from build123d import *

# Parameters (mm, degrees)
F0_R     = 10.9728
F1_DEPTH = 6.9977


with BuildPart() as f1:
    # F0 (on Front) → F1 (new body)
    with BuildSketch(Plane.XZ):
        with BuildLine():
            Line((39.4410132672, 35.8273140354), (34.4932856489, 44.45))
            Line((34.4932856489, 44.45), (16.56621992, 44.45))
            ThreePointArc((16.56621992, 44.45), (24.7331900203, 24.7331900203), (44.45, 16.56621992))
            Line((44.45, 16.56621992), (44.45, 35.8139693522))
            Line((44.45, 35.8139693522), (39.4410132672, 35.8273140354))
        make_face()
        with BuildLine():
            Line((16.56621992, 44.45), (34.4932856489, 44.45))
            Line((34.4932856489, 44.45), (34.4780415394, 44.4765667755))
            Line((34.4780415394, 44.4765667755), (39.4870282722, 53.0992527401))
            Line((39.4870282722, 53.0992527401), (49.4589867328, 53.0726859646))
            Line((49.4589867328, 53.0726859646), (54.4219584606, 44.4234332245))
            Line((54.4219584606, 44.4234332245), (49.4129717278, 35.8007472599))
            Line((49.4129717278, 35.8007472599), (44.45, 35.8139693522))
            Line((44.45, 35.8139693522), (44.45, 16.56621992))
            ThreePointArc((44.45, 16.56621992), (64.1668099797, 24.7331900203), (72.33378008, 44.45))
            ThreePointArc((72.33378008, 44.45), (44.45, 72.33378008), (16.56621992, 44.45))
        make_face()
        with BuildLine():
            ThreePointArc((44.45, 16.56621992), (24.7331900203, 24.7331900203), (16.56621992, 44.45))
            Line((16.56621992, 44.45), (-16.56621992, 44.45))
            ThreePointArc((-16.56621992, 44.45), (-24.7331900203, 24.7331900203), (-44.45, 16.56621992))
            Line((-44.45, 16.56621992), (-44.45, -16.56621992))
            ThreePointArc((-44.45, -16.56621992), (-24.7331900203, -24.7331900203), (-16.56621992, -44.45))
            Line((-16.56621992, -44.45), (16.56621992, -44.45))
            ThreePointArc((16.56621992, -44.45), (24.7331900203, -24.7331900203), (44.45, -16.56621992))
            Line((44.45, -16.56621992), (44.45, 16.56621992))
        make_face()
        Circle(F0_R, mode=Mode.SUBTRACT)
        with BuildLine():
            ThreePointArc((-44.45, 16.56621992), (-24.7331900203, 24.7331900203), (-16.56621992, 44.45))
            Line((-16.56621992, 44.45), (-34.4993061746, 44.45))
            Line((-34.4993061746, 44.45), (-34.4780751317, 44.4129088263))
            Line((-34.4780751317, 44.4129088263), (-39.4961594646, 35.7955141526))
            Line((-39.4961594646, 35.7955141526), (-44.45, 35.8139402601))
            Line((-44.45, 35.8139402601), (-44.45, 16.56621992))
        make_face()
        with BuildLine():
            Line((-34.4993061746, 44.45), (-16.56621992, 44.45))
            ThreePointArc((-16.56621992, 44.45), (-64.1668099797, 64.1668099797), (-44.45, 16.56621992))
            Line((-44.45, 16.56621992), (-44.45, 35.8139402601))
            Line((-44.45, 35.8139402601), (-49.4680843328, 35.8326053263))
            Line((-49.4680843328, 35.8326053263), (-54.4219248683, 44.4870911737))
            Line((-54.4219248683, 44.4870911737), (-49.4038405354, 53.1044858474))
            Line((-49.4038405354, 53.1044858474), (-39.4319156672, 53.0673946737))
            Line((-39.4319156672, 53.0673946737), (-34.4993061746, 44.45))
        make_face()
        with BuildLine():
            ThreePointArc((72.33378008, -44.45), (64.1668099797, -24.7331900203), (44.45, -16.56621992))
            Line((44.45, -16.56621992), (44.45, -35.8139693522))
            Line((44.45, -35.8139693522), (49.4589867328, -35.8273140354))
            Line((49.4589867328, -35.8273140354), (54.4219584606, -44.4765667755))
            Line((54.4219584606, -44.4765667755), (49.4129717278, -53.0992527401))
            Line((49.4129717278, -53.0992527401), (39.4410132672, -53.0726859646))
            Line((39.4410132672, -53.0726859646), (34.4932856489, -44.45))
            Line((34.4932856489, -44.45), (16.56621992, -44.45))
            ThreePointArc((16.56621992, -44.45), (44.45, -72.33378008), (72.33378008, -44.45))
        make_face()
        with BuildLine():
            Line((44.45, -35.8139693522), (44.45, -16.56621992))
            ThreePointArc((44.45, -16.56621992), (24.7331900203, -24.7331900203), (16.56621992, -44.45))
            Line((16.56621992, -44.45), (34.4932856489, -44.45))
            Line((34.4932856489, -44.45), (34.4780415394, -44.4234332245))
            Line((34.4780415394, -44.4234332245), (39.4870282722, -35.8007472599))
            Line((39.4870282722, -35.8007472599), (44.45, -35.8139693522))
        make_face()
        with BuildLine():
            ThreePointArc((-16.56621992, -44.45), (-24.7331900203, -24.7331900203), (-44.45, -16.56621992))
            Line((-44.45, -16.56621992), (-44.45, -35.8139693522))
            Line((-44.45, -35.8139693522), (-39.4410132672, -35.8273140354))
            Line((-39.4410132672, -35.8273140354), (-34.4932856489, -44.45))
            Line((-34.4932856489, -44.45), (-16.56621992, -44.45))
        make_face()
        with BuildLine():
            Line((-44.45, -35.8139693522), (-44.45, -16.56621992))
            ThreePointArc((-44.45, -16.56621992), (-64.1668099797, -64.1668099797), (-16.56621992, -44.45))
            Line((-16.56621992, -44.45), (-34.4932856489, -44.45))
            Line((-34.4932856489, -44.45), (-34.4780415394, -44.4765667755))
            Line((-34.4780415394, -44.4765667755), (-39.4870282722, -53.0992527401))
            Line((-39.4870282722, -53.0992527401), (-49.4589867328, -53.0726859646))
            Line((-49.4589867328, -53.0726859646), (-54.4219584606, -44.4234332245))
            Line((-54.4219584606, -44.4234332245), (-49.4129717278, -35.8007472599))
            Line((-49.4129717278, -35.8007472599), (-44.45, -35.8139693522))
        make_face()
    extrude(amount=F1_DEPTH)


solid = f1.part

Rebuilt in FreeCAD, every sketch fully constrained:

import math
import FreeCAD as App
import Part
import Sketcher

V = App.Vector
Q = App.Units.Quantity


def add_polygon(sketch, points):
    """Adds a closed chain of lines whose ends are joined by coincident constraints."""
    first, n = sketch.GeometryCount, len(points)
    for a, b in zip(points, points[1:] + points[:1]):
        sketch.addGeometry(Part.LineSegment(App.Vector(*a, 0), App.Vector(*b, 0)), False)
    for i in range(n):
        sketch.addConstraint(Sketcher.Constraint("Coincident", first + i, 2, first + (i + 1) % n, 1))

doc = App.newDocument("Part")
body = doc.addObject("PartDesign::Body", "Body")

# Sketch on XZ plane
sketch1 = body.newObject("Sketcher::SketchObject", "Sketch")
sketch1.AttachmentSupport = (doc.getObject("XZ_Plane"), [""])
sketch1.MapMode = "FlatFace"
sketch1.addGeometry(Part.ArcOfCircle(Part.Circle(V(44.45, 44.45, 0), V(0, 0, 1), 27.884), math.radians(-90), math.radians(0)), False)  # 0
sketch1.addGeometry(Part.ArcOfCircle(Part.Circle(V(44.45, 44.45, 0), V(0, 0, 1), 27.884), math.radians(0), math.radians(180)), False)  # 1
sketch1.addGeometry(Part.LineSegment(V(16.566, 44.45, 0), V(-16.566, 44.45, 0)), False)  # 2
sketch1.addGeometry(Part.ArcOfCircle(Part.Circle(V(-44.45, 44.45, 0), V(0, 0, 1), 27.884), math.radians(0), math.radians(270)), False)  # 3
sketch1.addGeometry(Part.LineSegment(V(-44.45, 16.566, 0), V(-44.45, -16.566, 0)), False)  # 4
sketch1.addGeometry(Part.ArcOfCircle(Part.Circle(V(-44.45, -44.45, 0), V(0, 0, 1), 27.884), math.radians(90), math.radians(360)), False)  # 5
sketch1.addGeometry(Part.LineSegment(V(-16.566, -44.45, 0), V(16.566, -44.45, 0)), False)  # 6
sketch1.addGeometry(Part.ArcOfCircle(Part.Circle(V(44.45, -44.45, 0), V(0, 0, 1), 27.884), math.radians(180), math.radians(360)), False)  # 7
sketch1.addGeometry(Part.ArcOfCircle(Part.Circle(V(44.45, -44.45, 0), V(0, 0, 1), 27.884), math.radians(0), math.radians(90)), False)  # 8
sketch1.addGeometry(Part.LineSegment(V(44.45, -16.566, 0), V(44.45, 16.566, 0)), False)  # 9
add_polygon(sketch1, [(-44.45, -35.814), (-39.441, -35.827), (-34.493, -44.45), (-34.478, -44.477), (-39.487, -53.099), (-49.459, -53.073), (-54.422, -44.423), (-49.413, -35.801)])  # lines 10-17
add_polygon(sketch1, [(-34.499, 44.45), (-34.478, 44.413), (-39.496, 35.796), (-44.45, 35.814), (-49.468, 35.833), (-54.422, 44.487), (-49.404, 53.104), (-39.432, 53.067)])  # lines 18-25
sketch1.addGeometry(Part.Circle(V(0, 0, 0), V(0, 0, 1), 10.973), False)  # 26
add_polygon(sketch1, [(39.441, 35.827), (34.493, 44.45), (34.478, 44.477), (39.487, 53.099), (49.459, 53.073), (54.422, 44.423), (49.413, 35.801), (44.45, 35.814)])  # lines 27-34
add_polygon(sketch1, [(39.487, -35.801), (44.45, -35.814), (49.459, -35.827), (54.422, -44.477), (49.413, -53.099), (39.441, -53.073), (34.493, -44.45), (34.478, -44.423)])  # lines 35-42
sketch1.addConstraint([
    Sketcher.Constraint("Tangent", 0, 2, 1, 1),
    Sketcher.Constraint("Coincident", 1, 2, 2, 1),
    Sketcher.Constraint("Coincident", 2, 2, 3, 1),
    Sketcher.Constraint("Coincident", 3, 2, 4, 1),
    Sketcher.Constraint("Coincident", 4, 2, 5, 1),
    Sketcher.Constraint("Coincident", 5, 2, 6, 1),
    Sketcher.Constraint("Coincident", 6, 2, 7, 1),
    Sketcher.Constraint("Tangent", 7, 2, 8, 1),
    Sketcher.Constraint("Coincident", 8, 2, 9, 1),
    Sketcher.Constraint("Coincident", 9, 2, 0, 1),
    Sketcher.Constraint("Horizontal", 2),
    Sketcher.Constraint("Vertical", 4),
    Sketcher.Constraint("Horizontal", 6),
    Sketcher.Constraint("Vertical", 9),
    Sketcher.Constraint("Coincident", 26, 3, -1, 1),
    Sketcher.Constraint("Equal", 0, 1),
    Sketcher.Constraint("Equal", 1, 3),
    Sketcher.Constraint("Equal", 3, 5),
    Sketcher.Constraint("Equal", 5, 7),
    Sketcher.Constraint("Equal", 7, 8),
    Sketcher.Constraint("Symmetric", 0, 3, 5, 3, -1, 1),
    Sketcher.Constraint("Symmetric", 3, 3, 7, 3, -1, 1),
    Sketcher.Constraint("Symmetric", 11, 2, 27, 2, -1, 1),
    Sketcher.Constraint("Symmetric", 12, 2, 28, 2, -1, 1),
    Sketcher.Constraint("Symmetric", 13, 2, 29, 2, -1, 1),
    Sketcher.Constraint("Symmetric", 14, 2, 30, 2, -1, 1),
    Sketcher.Constraint("Symmetric", 15, 2, 31, 2, -1, 1),
    Sketcher.Constraint("Symmetric", 16, 2, 32, 2, -1, 1),
    Sketcher.Constraint("Symmetric", 17, 2, 33, 2, -1, 1),
    Sketcher.Constraint("Symmetric", 10, 2, 34, 2, -1, 1),
    Sketcher.Constraint("Symmetric", 0, 3, 3, 3, -2),
    Sketcher.Constraint("Symmetric", 17, 2, 35, 2, -2),
    Sketcher.Constraint("Symmetric", 11, 2, 40, 2, -2),
    Sketcher.Constraint("Parallel", 11, 12),
    Sketcher.Constraint("Parallel", 10, 14),
    Sketcher.Constraint("Parallel", 11, 15),
    Sketcher.Constraint("Parallel", 13, 16),
    Sketcher.Constraint("Parallel", 14, 17),
    Sketcher.Constraint("Parallel", 20, 21),
    Sketcher.Constraint("Parallel", 18, 22),
    Sketcher.Constraint("Parallel", 19, 23),
    Sketcher.Constraint("Parallel", 21, 24),
    Sketcher.Constraint("Parallel", 22, 25),
    Sketcher.Constraint("Parallel", 34, 35),
    Sketcher.Constraint("Parallel", 35, 36),
    Sketcher.Constraint("Parallel", 31, 37),
    Sketcher.Constraint("Parallel", 32, 38),
    Sketcher.Constraint("Parallel", 36, 39),
    Sketcher.Constraint("Parallel", 37, 40),
    Sketcher.Constraint("Parallel", 40, 41),
    Sketcher.Constraint("Parallel", 38, 42),
    Sketcher.Constraint("Horizontal", 3, 3, 0, 2),
    Sketcher.Constraint("Horizontal", 0, 2, 1, 2),
    Sketcher.Constraint("Horizontal", 8, 3, 5, 2),
    Sketcher.Constraint("Horizontal", 6, 2, 7, 2),
    Sketcher.Constraint("Horizontal", 7, 2, 11, 2),
    Sketcher.Constraint("Horizontal", 2, 2, 25, 2),
    Sketcher.Constraint("Horizontal", 12, 2, 37, 2),
    Sketcher.Constraint("Horizontal", 13, 2, 38, 2),
    Sketcher.Constraint("Horizontal", 15, 2, 41, 2),
    Sketcher.Constraint("Vertical", 5, 3, 3, 2),
    Sketcher.Constraint("Vertical", 7, 3, 8, 2),
    Sketcher.Constraint("Vertical", 4, 2, 17, 2),
    Sketcher.Constraint("Vertical", 17, 2, 20, 2),
    Sketcher.Constraint("Vertical", 30, 2, 36, 2),
    Sketcher.Constraint("Vertical", 31, 2, 37, 2),
    Sketcher.Constraint("Vertical", 34, 2, 39, 2),
    Sketcher.Constraint("Equal", 6, 4),
    Sketcher.Constraint("Equal", 13, 14),
    Sketcher.Constraint("Equal", 14, 15),
    Sketcher.Constraint("Equal", 16, 19),
    Sketcher.Constraint("Equal", 19, 22),
    Sketcher.Constraint("Equal", 22, 23),
    Sketcher.Constraint("Equal", 23, 24),
    Sketcher.Constraint("Equal", 33, 35),
    Sketcher.Constraint("Diameter", 26, Q("0.864 in")),
    Sketcher.Constraint("DistanceX", 3, 3, 0, 3, Q("3.5 in")),
    Sketcher.Constraint("Radius", 0, Q("27.88378 mm")),
    Sketcher.Constraint("DistanceX", 11, 2, 12, 2, Q("0.0006002 in")),
    Sketcher.Constraint("DistanceX", 14, 2, 11, 2, Q("14.965701 mm")),
    Sketcher.Constraint("Distance", 17, Q("4.962989 mm")),
    Sketcher.Constraint("Distance", 21, Q("5.018119 mm")),
    Sketcher.Constraint("DistanceX", 12, 2, -1, 1, Q("34.478042 mm")),
    Sketcher.Constraint("DistanceY", -1, 1, 18, 2, Q("44.412909 mm")),
    Sketcher.Constraint("DistanceY", -1, 1, 20, 2, Q("35.81394 mm")),
    Sketcher.Constraint("DistanceY", -1, 1, 22, 2, Q("44.487091 mm")),
    Sketcher.Constraint("DistanceX", 23, 2, -1, 1, Q("49.403841 mm")),
])
pad1 = body.newObject("PartDesign::Pad", "Pad")
pad1.Profile = sketch1
pad1.Length = Q("0.2755 in")

doc.recompute()
